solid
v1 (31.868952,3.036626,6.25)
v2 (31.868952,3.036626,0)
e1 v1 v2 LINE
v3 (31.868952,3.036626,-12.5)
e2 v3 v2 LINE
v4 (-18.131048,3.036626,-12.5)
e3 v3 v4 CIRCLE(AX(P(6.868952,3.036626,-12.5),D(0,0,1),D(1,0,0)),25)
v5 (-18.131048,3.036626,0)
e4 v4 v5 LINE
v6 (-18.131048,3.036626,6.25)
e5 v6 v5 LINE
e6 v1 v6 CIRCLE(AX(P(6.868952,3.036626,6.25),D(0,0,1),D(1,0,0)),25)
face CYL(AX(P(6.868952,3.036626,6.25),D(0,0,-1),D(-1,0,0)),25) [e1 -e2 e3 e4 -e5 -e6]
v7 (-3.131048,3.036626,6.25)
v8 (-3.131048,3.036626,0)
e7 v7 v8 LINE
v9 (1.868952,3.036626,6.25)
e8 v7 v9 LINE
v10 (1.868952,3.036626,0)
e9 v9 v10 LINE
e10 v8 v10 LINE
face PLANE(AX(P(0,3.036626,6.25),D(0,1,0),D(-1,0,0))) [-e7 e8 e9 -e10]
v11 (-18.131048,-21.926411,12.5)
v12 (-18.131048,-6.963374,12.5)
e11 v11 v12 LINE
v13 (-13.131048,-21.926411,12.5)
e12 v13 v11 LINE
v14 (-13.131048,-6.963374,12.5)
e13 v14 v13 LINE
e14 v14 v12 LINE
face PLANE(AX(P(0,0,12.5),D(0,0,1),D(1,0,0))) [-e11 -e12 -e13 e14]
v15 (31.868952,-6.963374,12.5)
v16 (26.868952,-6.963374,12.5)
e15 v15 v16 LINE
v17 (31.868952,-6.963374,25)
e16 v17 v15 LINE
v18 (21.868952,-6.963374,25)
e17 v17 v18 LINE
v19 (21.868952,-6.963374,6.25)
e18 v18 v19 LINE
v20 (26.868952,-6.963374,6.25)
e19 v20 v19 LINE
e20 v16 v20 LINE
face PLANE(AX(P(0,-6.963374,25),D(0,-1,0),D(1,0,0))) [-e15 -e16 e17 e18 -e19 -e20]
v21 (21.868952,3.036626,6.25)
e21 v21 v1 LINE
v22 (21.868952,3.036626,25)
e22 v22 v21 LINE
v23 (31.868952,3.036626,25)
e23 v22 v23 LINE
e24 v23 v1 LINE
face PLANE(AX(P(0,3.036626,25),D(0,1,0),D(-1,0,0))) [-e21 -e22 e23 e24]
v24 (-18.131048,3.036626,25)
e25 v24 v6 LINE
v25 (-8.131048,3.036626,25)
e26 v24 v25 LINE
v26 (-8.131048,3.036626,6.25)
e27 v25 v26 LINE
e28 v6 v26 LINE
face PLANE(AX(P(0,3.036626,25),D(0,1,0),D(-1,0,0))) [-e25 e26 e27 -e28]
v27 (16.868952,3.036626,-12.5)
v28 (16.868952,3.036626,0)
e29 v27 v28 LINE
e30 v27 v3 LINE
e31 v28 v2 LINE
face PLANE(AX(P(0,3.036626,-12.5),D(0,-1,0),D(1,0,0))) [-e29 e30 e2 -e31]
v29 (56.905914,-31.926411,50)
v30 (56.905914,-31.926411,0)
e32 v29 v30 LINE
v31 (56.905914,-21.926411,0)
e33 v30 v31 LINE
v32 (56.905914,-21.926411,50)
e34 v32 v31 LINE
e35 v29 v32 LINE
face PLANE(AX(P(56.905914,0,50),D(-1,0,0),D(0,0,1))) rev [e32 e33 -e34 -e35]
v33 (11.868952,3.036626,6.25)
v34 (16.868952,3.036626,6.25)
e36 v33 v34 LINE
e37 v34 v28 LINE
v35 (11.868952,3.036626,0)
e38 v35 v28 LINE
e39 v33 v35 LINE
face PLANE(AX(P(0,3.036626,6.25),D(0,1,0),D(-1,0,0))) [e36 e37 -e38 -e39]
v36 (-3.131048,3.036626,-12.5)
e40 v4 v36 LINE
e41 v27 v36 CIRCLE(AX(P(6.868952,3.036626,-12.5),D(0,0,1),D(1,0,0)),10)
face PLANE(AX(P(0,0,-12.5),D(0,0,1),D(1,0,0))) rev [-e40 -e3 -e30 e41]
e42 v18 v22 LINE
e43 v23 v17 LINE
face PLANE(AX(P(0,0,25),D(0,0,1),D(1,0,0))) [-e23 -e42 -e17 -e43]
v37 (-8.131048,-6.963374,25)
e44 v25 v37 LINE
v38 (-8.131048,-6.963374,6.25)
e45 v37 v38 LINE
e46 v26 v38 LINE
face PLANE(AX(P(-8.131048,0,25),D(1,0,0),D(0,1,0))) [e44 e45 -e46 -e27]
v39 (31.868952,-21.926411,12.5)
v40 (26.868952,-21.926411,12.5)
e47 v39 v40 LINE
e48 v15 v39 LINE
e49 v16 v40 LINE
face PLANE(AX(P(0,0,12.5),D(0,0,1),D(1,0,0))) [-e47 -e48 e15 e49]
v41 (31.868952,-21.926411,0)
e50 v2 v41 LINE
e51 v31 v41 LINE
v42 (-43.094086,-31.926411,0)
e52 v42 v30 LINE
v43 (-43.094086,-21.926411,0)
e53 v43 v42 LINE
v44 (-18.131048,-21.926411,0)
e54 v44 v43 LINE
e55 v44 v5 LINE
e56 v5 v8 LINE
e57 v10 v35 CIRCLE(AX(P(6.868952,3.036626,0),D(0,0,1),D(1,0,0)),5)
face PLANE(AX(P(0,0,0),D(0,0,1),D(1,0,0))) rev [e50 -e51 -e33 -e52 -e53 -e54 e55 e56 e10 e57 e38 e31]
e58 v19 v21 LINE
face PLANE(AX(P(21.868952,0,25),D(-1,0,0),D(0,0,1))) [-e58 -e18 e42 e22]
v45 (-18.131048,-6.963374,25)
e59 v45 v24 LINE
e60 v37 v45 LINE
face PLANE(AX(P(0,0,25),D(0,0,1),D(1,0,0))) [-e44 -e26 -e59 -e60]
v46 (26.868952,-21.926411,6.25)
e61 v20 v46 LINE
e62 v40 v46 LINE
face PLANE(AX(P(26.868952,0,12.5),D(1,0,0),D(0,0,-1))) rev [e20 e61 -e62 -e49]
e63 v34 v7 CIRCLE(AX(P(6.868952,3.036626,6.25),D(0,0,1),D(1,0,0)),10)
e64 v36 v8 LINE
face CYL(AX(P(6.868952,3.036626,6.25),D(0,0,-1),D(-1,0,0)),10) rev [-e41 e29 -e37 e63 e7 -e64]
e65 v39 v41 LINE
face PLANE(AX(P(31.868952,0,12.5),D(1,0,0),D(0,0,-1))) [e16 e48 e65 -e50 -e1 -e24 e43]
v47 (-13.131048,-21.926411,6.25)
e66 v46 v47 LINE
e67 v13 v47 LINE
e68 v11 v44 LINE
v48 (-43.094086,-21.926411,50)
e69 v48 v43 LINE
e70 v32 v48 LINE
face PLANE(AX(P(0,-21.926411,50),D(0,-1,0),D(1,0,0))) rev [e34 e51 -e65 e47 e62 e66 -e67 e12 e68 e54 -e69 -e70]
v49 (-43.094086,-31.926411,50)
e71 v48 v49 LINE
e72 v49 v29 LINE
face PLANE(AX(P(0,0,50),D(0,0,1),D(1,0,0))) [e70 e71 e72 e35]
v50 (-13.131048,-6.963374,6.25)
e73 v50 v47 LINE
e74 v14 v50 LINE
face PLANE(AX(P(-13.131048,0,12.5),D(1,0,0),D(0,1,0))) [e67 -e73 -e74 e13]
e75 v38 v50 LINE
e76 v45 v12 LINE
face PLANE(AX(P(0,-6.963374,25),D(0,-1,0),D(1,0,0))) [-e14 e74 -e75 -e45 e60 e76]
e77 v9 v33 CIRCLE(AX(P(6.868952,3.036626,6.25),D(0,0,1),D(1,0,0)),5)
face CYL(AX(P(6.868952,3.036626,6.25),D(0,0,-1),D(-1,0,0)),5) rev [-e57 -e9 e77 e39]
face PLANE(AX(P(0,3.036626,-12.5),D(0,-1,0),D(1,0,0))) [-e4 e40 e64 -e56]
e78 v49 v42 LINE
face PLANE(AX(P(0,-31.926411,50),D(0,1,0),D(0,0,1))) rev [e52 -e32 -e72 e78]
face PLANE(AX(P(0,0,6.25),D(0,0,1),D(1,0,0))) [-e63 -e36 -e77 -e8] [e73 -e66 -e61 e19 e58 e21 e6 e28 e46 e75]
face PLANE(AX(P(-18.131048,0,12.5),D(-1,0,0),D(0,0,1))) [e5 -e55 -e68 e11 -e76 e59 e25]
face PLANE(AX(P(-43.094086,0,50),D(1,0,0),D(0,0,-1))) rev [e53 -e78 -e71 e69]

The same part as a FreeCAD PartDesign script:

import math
import FreeCAD as App
import Part
import Sketcher

V = App.Vector

doc = App.newDocument("Part")
body = doc.addObject("PartDesign::Body", "Body")

# Sketch on XY plane
sketch1 = body.newObject("Sketcher::SketchObject", "Sketch")
sketch1.AttachmentSupport = (doc.getObject("XY_Plane"), [""])
sketch1.MapMode = "FlatFace"
sketch1.addGeometry([
    Part.LineSegment(V(-43.094086, -21.926411, 0), V(-43.094086, -31.926411, 0)),
    Part.LineSegment(V(-43.094086, -31.926411, 0), V(56.905914, -31.926411, 0)),
    Part.LineSegment(V(56.905914, -31.926411, 0), V(56.905914, -21.926411, 0)),
    Part.LineSegment(V(56.905914, -21.926411, 0), V(-43.094086, -21.926411, 0)),
], False)
sketch1.addConstraint([
    Sketcher.Constraint("Coincident", 0, 2, 1, 1),
    Sketcher.Constraint("Coincident", 1, 2, 2, 1),
    Sketcher.Constraint("Coincident", 2, 2, 3, 1),
    Sketcher.Constraint("Coincident", 3, 2, 0, 1),
    Sketcher.Constraint("Vertical", 0),
    Sketcher.Constraint("Horizontal", 1),
    Sketcher.Constraint("Vertical", 2),
    Sketcher.Constraint("Horizontal", 3),
    Sketcher.Constraint("DistanceX", 1, 1, 1, 2, 100.0),
    Sketcher.Constraint("DistanceY", 0, 2, 0, 1, 10.0),
    Sketcher.Constraint("DistanceY", 0, 2, -1, 1, 31.926411),
    Sketcher.Constraint("DistanceX", 0, 2, -1, 1, 43.094086),
])
pad1 = body.newObject("PartDesign::Pad", "Pad")
pad1.Profile = sketch1
pad1.Length = 50
body2 = doc.addObject("PartDesign::Body", "Body001")

# Sketch on XY plane
sketch2 = body2.newObject("Sketcher::SketchObject", "Sketch001")
sketch2.AttachmentSupport = (doc.getObject("XY_Plane001"), [""])
sketch2.MapMode = "FlatFace"
sketch2.addGeometry([
    Part.LineSegment(V(-18.131048, 3.036626, 0), V(-18.131048, -6.963374, 0)),
    Part.LineSegment(V(-18.131048, -6.963374, 0), V(-8.131048, -6.963374, 0)),
    Part.LineSegment(V(-8.131048, -6.963374, 0), V(-8.131048, 3.036626, 0)),
    Part.LineSegment(V(-8.131048, 3.036626, 0), V(-18.131048, 3.036626, 0)),
], False)
sketch2.addConstraint([
    Sketcher.Constraint("Coincident", 0, 2, 1, 1),
    Sketcher.Constraint("Coincident", 1, 2, 2, 1),
    Sketcher.Constraint("Coincident", 2, 2, 3, 1),
    Sketcher.Constraint("Coincident", 3, 2, 0, 1),
    Sketcher.Constraint("Vertical", 0),
    Sketcher.Constraint("Horizontal", 1),
    Sketcher.Constraint("Vertical", 2),
    Sketcher.Constraint("Horizontal", 3),
    Sketcher.Constraint("Equal", 3, 0),
    Sketcher.Constraint("DistanceX", 1, 1, 1, 2, 10.0),
    Sketcher.Constraint("DistanceX", 0, 2, -1, 1, 18.131048),
    Sketcher.Constraint("DistanceY", 0, 2, -1, 1, 6.963374),
])
pad2 = body2.newObject("PartDesign::Pad", "Pad001")
pad2.Profile = sketch2
pad2.Length = 25
body3 = doc.addObject("PartDesign::Body", "Body002")

# Sketch on XY plane
sketch3 = body3.newObject("Sketcher::SketchObject", "Sketch002")
sketch3.AttachmentSupport = (doc.getObject("XY_Plane002"), [""])
sketch3.MapMode = "FlatFace"
sketch3.addGeometry([
    Part.LineSegment(V(31.868952, -6.963374, 0), V(31.868952, 3.036626, 0)),
    Part.LineSegment(V(31.868952, 3.036626, 0), V(21.868952, 3.036626, 0)),
    Part.LineSegment(V(21.868952, 3.036626, 0), V(21.868952, -6.963374, 0)),
    Part.LineSegment(V(21.868952, -6.963374, 0), V(31.868952, -6.963374, 0)),
], False)
sketch3.addConstraint([
    Sketcher.Constraint("Coincident", 0, 2, 1, 1),
    Sketcher.Constraint("Coincident", 1, 2, 2, 1),
    Sketcher.Constraint("Coincident", 2, 2, 3, 1),
    Sketcher.Constraint("Coincident", 3, 2, 0, 1),
    Sketcher.Constraint("Vertical", 0),
    Sketcher.Constraint("Horizontal", 1),
    Sketcher.Constraint("Vertical", 2),
    Sketcher.Constraint("Horizontal", 3),
    Sketcher.Constraint("Equal", 3, 0),
    Sketcher.Constraint("DistanceX", 1, 2, 1, 1, 10.0),
    Sketcher.Constraint("DistanceX", -1, 1, 0, 2, 31.868952),
    Sketcher.Constraint("DistanceY", -1, 1, 0, 2, 3.036626),
])
pad3 = body3.newObject("PartDesign::Pad", "Pad002")
pad3.Profile = sketch3
pad3.Length = 25
body.AllowCompound = True
doc.recompute()

boolean = body.newObject("PartDesign::Boolean", "Boolean")
boolean.Type = "Fuse"
boolean.addObjects([body2])
doc.recompute()

boolean2 = body.newObject("PartDesign::Boolean", "Boolean001")
boolean2.Type = "Fuse"
boolean2.addObjects([body3])

# Sketch on XY plane
sketch4 = body.newObject("Sketcher::SketchObject", "Sketch003")
sketch4.AttachmentSupport = (doc.getObject("XY_Plane"), [""])
sketch4.MapMode = "FlatFace"
sketch4.addGeometry([
    Part.LineSegment(V(-18.131048, -6.963374, 0), V(-18.131048, -21.926411, 0)),  # 0
    Part.LineSegment(V(-18.131048, -21.926411, 0), V(-13.131048, -21.926411, 0)),  # 1
    Part.LineSegment(V(-13.131048, -21.926411, 0), V(-13.131048, -6.963374, 0)),  # 2
    Part.LineSegment(V(-13.131048, -6.963374, 0), V(-18.131048, -6.963374, 0)),  # 3
    Part.LineSegment(V(26.868952, -6.963374, 0), V(26.868952, -21.926411, 0)),  # 4
    Part.LineSegment(V(26.868952, -21.926411, 0), V(31.868952, -21.926411, 0)),  # 5
    Part.LineSegment(V(31.868952, -21.926411, 0), V(31.868952, -6.963374, 0)),  # 6
    Part.LineSegment(V(31.868952, -6.963374, 0), V(26.868952, -6.963374, 0)),  # 7
], False)
sketch4.addConstraint([
    Sketcher.Constraint("Coincident", 0, 2, 1, 1),
    Sketcher.Constraint("Coincident", 1, 2, 2, 1),
    Sketcher.Constraint("Coincident", 2, 2, 3, 1),
    Sketcher.Constraint("Coincident", 3, 2, 0, 1),
    Sketcher.Constraint("Coincident", 4, 2, 5, 1),
    Sketcher.Constraint("Coincident", 5, 2, 6, 1),
    Sketcher.Constraint("Coincident", 6, 2, 7, 1),
    Sketcher.Constraint("Coincident", 7, 2, 4, 1),
    Sketcher.Constraint("Vertical", 0),
    Sketcher.Constraint("Horizontal", 1),
    Sketcher.Constraint("Vertical", 2),
    Sketcher.Constraint("Horizontal", 3),
    Sketcher.Constraint("Vertical", 4),
    Sketcher.Constraint("Horizontal", 5),
    Sketcher.Constraint("Vertical", 6),
    Sketcher.Constraint("Horizontal", 7),
    Sketcher.Constraint("Horizontal", 1, 2, 4, 2),
    Sketcher.Constraint("Horizontal", 3, 2, 6, 2),
    Sketcher.Constraint("Equal", 3, 5),
    Sketcher.Constraint("DistanceX", 1, 1, 1, 2, 5.0),
    Sketcher.Constraint("DistanceX", 1, 2, 4, 2, 40.0),
    Sketcher.Constraint("DistanceY", 0, 2, 0, 1, 14.963038),
    Sketcher.Constraint("DistanceX", 0, 2, -1, 1, 18.131048),
    Sketcher.Constraint("DistanceY", 0, 2, -1, 1, 21.926411),
])
pad4 = body.newObject("PartDesign::Pad", "Pad003")
pad4.Profile = sketch4
pad4.Length = 12.5

# Sketch on XY plane
sketch5 = body.newObject("Sketcher::SketchObject", "Sketch004")
sketch5.AttachmentSupport = (doc.getObject("XY_Plane"), [""])
sketch5.MapMode = "FlatFace"
sketch5.addGeometry([
    Part.LineSegment(V(-13.131048, -6.963374, 0), V(-13.131048, -21.926411, 0)),  # 0
    Part.LineSegment(V(-13.131048, -21.926411, 0), V(26.868952, -21.926411, 0)),  # 1
    Part.LineSegment(V(26.868952, -21.926411, 0), V(26.868952, -6.963374, 0)),  # 2
    Part.LineSegment(V(26.868952, -6.963374, 0), V(21.868952, -6.963374, 0)),  # 3
    Part.LineSegment(V(21.868952, -6.963374, 0), V(21.868952, 3.036626, 0)),  # 4
    Part.LineSegment(V(21.868952, 3.036626, 0), V(31.868952, 3.036626, 0)),  # 5
    Part.ArcOfCircle(Part.Circle(V(6.868952, 3.036626, 0), V(0, 0, 1), 25), math.radians(0), math.radians(180)),  # 6
    Part.LineSegment(V(-18.131048, 3.036626, 0), V(-8.131048, 3.036626, 0)),  # 7
    Part.LineSegment(V(-8.131048, 3.036626, 0), V(-8.131048, -6.963374, 0)),  # 8
    Part.LineSegment(V(-8.131048, -6.963374, 0), V(-13.131048, -6.963374, 0)),  # 9
    Part.LineSegment(V(16.868952, 3.036626, 0), V(11.868952, 3.036626, 0)),  # 10
    Part.ArcOfCircle(Part.Circle(V(6.868952, 3.036626, 0), V(0, 0, 1), 5), math.radians(180), math.radians(360)),  # 11
    Part.LineSegment(V(1.868952, 3.036626, 0), V(-3.131048, 3.036626, 0)),  # 12
    Part.ArcOfCircle(Part.Circle(V(6.868952, 3.036626, 0), V(0, 0, 1), 10), math.radians(0), math.radians(180)),  # 13
], False)
sketch5.addConstraint([
    Sketcher.Constraint("Coincident", 0, 2, 1, 1),
    Sketcher.Constraint("Coincident", 1, 2, 2, 1),
    Sketcher.Constraint("Coincident", 2, 2, 3, 1),
    Sketcher.Constraint("Coincident", 3, 2, 4, 1),
    Sketcher.Constraint("Coincident", 4, 2, 5, 1),
    Sketcher.Constraint("Coincident", 5, 2, 6, 1),
    Sketcher.Constraint("Coincident", 6, 2, 7, 1),
    Sketcher.Constraint("Coincident", 7, 2, 8, 1),
    Sketcher.Constraint("Coincident", 8, 2, 9, 1),
    Sketcher.Constraint("Coincident", 9, 2, 0, 1),
    Sketcher.Constraint("Coincident", 10, 2, 11, 2),
    Sketcher.Constraint("Coincident", 11, 1, 12, 1),
    Sketcher.Constraint("Coincident", 12, 2, 13, 2),
    Sketcher.Constraint("Coincident", 13, 1, 10, 1),
    Sketcher.Constraint("Vertical", 0),
    Sketcher.Constraint("Horizontal", 1),
    Sketcher.Constraint("Vertical", 2),
    Sketcher.Constraint("Horizontal", 3),
    Sketcher.Constraint("Vertical", 4),
    Sketcher.Constraint("Horizontal", 5),
    Sketcher.Constraint("Horizontal", 7),
    Sketcher.Constraint("Vertical", 8),
    Sketcher.Constraint("Horizontal", 9),
    Sketcher.Constraint("Horizontal", 10),
    Sketcher.Constraint("Horizontal", 12),
    Sketcher.Constraint("Coincident", 11, 3, 6, 3),
    Sketcher.Constraint("Coincident", 13, 3, 6, 3),
    Sketcher.Constraint("Horizontal", 13, 3, 4, 2),
    Sketcher.Constraint("Horizontal", 5, 2, 6, 2),
    Sketcher.Constraint("Horizontal", 3, 2, 8, 2),
    Sketcher.Constraint("Horizontal", 7, 2, 10, 2),
    Sketcher.Constraint("Horizontal", 10, 2, 11, 1),
    Sketcher.Constraint("Equal", 5, 7),
    Sketcher.Constraint("Equal", 3, 9),
    Sketcher.Constraint("Equal", 9, 10),
    Sketcher.Constraint("Equal", 7, 4),
    Sketcher.Constraint("Radius", 6, 25.0),
    Sketcher.Constraint("Radius", 11, 5.0),
    Sketcher.Constraint("Radius", 13, 10.0),
    Sketcher.Constraint("DistanceX", 1, 1, 1, 2, 40.0),
    Sketcher.Constraint("DistanceY", 0, 2, 0, 1, 14.963038),
    Sketcher.Constraint("DistanceX", -1, 1, 6, 3, 6.868952),
    Sketcher.Constraint("DistanceY", 0, 2, -1, 1, 21.926411),
])
pad5 = body.newObject("PartDesign::Pad", "Pad004")
pad5.Profile = sketch5
pad5.Length = 6.25

# Sketch on XY plane
sketch6 = body.newObject("Sketcher::SketchObject", "Sketch005")
sketch6.AttachmentSupport = (doc.getObject("XY_Plane"), [""])
sketch6.MapMode = "FlatFace"
sketch6.addGeometry([
    Part.ArcOfCircle(Part.Circle(V(6.868952, 3.036626, 0), V(0, 0, 1), 25), math.radians(0), math.radians(180)),
    Part.LineSegment(V(-18.131048, 3.036626, 0), V(-3.131048, 3.036626, 0)),
    Part.ArcOfCircle(Part.Circle(V(6.868952, 3.036626, 0), V(0, 0, 1), 10), math.radians(0), math.radians(180)),
    Part.LineSegment(V(16.868952, 3.036626, 0), V(31.868952, 3.036626, 0)),
], False)
sketch6.addConstraint([
    Sketcher.Constraint("Coincident", 0, 2, 1, 1),
    Sketcher.Constraint("Coincident", 1, 2, 2, 2),
    Sketcher.Constraint("Coincident", 2, 1, 3, 1),
    Sketcher.Constraint("Coincident", 3, 2, 0, 1),
    Sketcher.Constraint("Horizontal", 1),
    Sketcher.Constraint("Horizontal", 3),
    Sketcher.Constraint("Coincident", 2, 3, 0, 3),
    Sketcher.Constraint("Horizontal", 2, 3, 0, 2),
    Sketcher.Constraint("Horizontal", 1, 2, 2, 1),
    Sketcher.Constraint("Radius", 0, 25.0),
    Sketcher.Constraint("Radius", 2, 10.0),
    Sketcher.Constraint("DistanceX", -1, 1, 0, 3, 6.868952),
    Sketcher.Constraint("DistanceY", -1, 1, 0, 3, 3.036626),
])
pad6 = body.newObject("PartDesign::Pad", "Pad005")
pad6.Profile = sketch6
pad6.Length = 12.5
pad6.Reversed = True

doc.recompute()
